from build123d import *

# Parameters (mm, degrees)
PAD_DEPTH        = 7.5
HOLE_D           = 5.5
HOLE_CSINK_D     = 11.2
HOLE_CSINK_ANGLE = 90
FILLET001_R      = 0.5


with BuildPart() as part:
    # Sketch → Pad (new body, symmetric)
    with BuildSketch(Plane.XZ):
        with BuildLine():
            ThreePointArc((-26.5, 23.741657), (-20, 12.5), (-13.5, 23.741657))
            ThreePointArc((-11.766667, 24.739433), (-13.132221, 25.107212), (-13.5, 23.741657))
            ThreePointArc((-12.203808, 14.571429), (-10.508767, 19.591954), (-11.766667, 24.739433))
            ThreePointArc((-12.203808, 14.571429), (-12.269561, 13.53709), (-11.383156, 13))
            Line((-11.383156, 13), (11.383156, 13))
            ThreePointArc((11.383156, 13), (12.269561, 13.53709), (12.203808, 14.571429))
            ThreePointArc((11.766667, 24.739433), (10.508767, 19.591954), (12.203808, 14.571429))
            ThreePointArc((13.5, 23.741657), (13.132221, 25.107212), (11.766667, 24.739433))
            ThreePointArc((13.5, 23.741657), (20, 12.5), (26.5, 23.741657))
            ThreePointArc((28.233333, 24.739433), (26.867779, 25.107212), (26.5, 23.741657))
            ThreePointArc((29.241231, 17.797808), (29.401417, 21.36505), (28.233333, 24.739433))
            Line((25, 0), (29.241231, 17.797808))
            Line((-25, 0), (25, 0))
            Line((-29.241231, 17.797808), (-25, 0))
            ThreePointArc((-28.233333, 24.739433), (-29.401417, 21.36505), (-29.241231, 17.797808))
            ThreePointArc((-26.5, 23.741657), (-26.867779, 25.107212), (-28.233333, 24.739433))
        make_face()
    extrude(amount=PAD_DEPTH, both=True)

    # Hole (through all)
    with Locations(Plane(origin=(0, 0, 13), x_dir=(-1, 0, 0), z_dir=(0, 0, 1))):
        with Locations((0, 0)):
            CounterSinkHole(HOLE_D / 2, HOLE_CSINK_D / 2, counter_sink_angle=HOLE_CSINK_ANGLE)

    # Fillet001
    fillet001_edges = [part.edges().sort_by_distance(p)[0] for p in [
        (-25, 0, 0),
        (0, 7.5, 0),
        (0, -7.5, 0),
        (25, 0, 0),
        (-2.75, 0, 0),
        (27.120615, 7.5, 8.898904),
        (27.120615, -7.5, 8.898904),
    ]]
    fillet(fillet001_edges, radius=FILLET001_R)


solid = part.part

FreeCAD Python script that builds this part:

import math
import FreeCAD as App
import Part
import Sketcher
Q = App.Units.Quantity


def edges_at(feature, points):
    """Names of the edges that pass closest to the given points."""
    edges = feature.Shape.Edges
    near = lambda p: min(range(len(edges)), key=lambda i: edges[i].distToShape(Part.Vertex(*p))[0])
    return sorted({f"Edge{near(p) + 1}" for p in points})

doc = App.newDocument("Part")
body = doc.addObject("PartDesign::Body", "Body")

sketch1 = body.newObject("Sketcher::SketchObject", "Sketch")
sketch1.AttachmentSupport = (doc.getObject("XZ_Plane"), [""])
sketch1.MapMode = "FlatFace"
sketch1.addGeometry([
    Part.ArcOfCircle(Part.Circle(App.Vector(-20, 20, 0), App.Vector(0, 0, 1), 7.5), math.radians(150), math.radians(390)),
    Part.ArcOfCircle(Part.Circle(App.Vector(-27.4, 24.2, 0), App.Vector(0, 0, 1), 1), math.radians(-30), math.radians(150)),
    Part.ArcOfCircle(Part.Circle(App.Vector(-20, 20, 0), App.Vector(0, 0, 1), 9.5), math.radians(150), math.radians(193)),
    Part.LineSegment(App.Vector(-29.2, 17.8, 0), App.Vector(-25, 0, 0)),
    Part.LineSegment(App.Vector(-25, 0, 0), App.Vector(25, 0, 0)),
    Part.LineSegment(App.Vector(25, 0, 0), App.Vector(29.2, 17.8, 0)),
    Part.ArcOfCircle(Part.Circle(App.Vector(20, 20, 0), App.Vector(0, 0, 1), 9.5), math.radians(-13), math.radians(30)),
    Part.ArcOfCircle(Part.Circle(App.Vector(27.4, 24.2, 0), App.Vector(0, 0, 1), 1), math.radians(30), math.radians(210)),
    Part.ArcOfCircle(Part.Circle(App.Vector(20, 20, 0), App.Vector(0, 0, 1), 7.5), math.radians(150), math.radians(390)),
    Part.ArcOfCircle(Part.Circle(App.Vector(12.6, 24.2, 0), App.Vector(0, 0, 1), 1), math.radians(-30), math.radians(150)),
    Part.ArcOfCircle(Part.Circle(App.Vector(20, 20, 0), App.Vector(0, 0, 1), 9.5), math.radians(150), math.radians(215)),
    Part.ArcOfCircle(Part.Circle(App.Vector(11.4, 14, 0), App.Vector(0, 0, 1), 1), math.radians(-90), math.radians(35)),
    Part.LineSegment(App.Vector(11.4, 13, 0), App.Vector(-11.4, 13, 0)),
    Part.ArcOfCircle(Part.Circle(App.Vector(-11.4, 14, 0), App.Vector(0, 0, 1), 1), math.radians(145), math.radians(270)),
    Part.ArcOfCircle(Part.Circle(App.Vector(-20, 20, 0), App.Vector(0, 0, 1), 9.5), math.radians(-35), math.radians(30)),
    Part.ArcOfCircle(Part.Circle(App.Vector(-12.6, 24.2, 0), App.Vector(0, 0, 1), 1), math.radians(30), math.radians(210)),
], False)
sketch1.addConstraint([
    Sketcher.Constraint("Tangent", 0, 1, 1, 1),
    Sketcher.Constraint("Tangent", 1, 2, 2, 1),
    Sketcher.Constraint("Tangent", 2, 2, 3, 1),
    Sketcher.Constraint("Coincident", 3, 2, 4, 1),
    Sketcher.Constraint("Coincident", 4, 2, 5, 1),
    Sketcher.Constraint("Tangent", 5, 2, 6, 1),
    Sketcher.Constraint("Tangent", 6, 2, 7, 1),
    Sketcher.Constraint("Tangent", 7, 2, 8, 2),
    Sketcher.Constraint("Tangent", 8, 1, 9, 1),
    Sketcher.Constraint("Tangent", 9, 2, 10, 1),
    Sketcher.Constraint("Tangent", 10, 2, 11, 2),
    Sketcher.Constraint("Tangent", 11, 1, 12, 1),
    Sketcher.Constraint("Tangent", 12, 2, 13, 2),
    Sketcher.Constraint("Tangent", 13, 1, 14, 1),
    Sketcher.Constraint("Tangent", 14, 2, 15, 1),
    Sketcher.Constraint("Tangent", 15, 2, 0, 2),
    Sketcher.Constraint("Horizontal", 4),
    Sketcher.Constraint("Horizontal", 12),
    Sketcher.Constraint("Coincident", 2, 3, 0, 3),
    Sketcher.Constraint("Coincident", 8, 3, 6, 3),
    Sketcher.Constraint("Coincident", 10, 3, 6, 3),
    Sketcher.Constraint("Coincident", 14, 3, 0, 3),
    Sketcher.Constraint("Equal", 2, 6),
    Sketcher.Constraint("Equal", 1, 7),
    Sketcher.Constraint("Equal", 7, 9),
    Sketcher.Constraint("Equal", 9, 11),
    Sketcher.Constraint("Equal", 11, 13),
    Sketcher.Constraint("Equal", 10, 14),
    Sketcher.Constraint("Symmetric", 3, 2, 4, 2, -1, 1),
    Sketcher.Constraint("Symmetric", 0, 3, 6, 3, -2),
    Sketcher.Constraint("Horizontal", 1, 3, 7, 3),
    Sketcher.Constraint("Horizontal", 7, 3, 9, 3),
    Sketcher.Constraint("Horizontal", 9, 3, 15, 3),
    Sketcher.Constraint("Radius", 1, Q("1 mm")),
    Sketcher.Constraint("Radius", 0, Q("7.5 mm")),
    Sketcher.Constraint("DistanceX", 4, 1, 4, 2, Q("50 mm")),
    Sketcher.Constraint("DistanceX", 0, 3, -1, 1, Q("20 mm")),
    Sketcher.Constraint("DistanceY", -1, 1, 0, 3, Q("20 mm")),
    Sketcher.Constraint("DistanceY", -1, 1, 11, 3, Q("14.000001 mm")),
    Sketcher.Constraint("DistanceX", 0, 1, -1, 1, Q("26.5 mm")),
])
pad1 = body.newObject("PartDesign::Pad", "Pad")
pad1.Profile = sketch1
pad1.Length = 15
pad1.Midplane = True

sketch2 = body.newObject("Sketcher::SketchObject", "Sketch001")
sketch2.AttachmentSupport = (doc.getObject("XY_Plane"), [""])
sketch2.MapMode = "FlatFace"
sketch2.AttachmentOffset = App.Placement(App.Vector(0, 0, 13), App.Rotation())
sketch2.addGeometry(Part.Circle(App.Vector(0, 0, 0), App.Vector(0, 0, 1), 2.8), False)
sketch2.addConstraint([
    Sketcher.Constraint("Coincident", 0, 3, -1, 1),
    Sketcher.Constraint("Diameter", 0, Q("5.5 mm")),
])
doc.recompute()
hole = body.newObject("PartDesign::Hole", "Hole")
hole.Profile = sketch2
hole.ThreadType = "None"
hole.Diameter = 5.5
hole.DepthType = "ThroughAll"
hole.HoleCutType = "Countersink"
hole.HoleCutDiameter = 11.2
hole.HoleCutCountersinkAngle = 90
doc.recompute()

fillet = body.newObject("PartDesign::Fillet", "Fillet")
fillet.Base = (hole, edges_at(hole, [
    (-25, 0, 0),
    (0, 7.5, 0),
    (0, -7.5, 0),
    (25, 0, 0),
    (-2.75, 0, 0),
    (27.121, 7.5, 8.899),
    (27.121, -7.5, 8.899),
]))
fillet.Radius = 0.5

doc.recompute()
